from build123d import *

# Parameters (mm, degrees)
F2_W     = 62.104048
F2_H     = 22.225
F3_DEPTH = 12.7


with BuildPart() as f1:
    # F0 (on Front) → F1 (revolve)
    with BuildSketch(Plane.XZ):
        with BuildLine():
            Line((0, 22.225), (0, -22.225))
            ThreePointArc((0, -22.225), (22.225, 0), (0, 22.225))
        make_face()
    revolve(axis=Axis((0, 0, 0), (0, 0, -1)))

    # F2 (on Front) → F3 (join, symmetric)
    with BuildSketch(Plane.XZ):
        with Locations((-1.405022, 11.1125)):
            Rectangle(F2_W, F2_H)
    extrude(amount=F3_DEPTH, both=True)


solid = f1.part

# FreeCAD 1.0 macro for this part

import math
import FreeCAD as App
import Part
import Sketcher

V = App.Vector
Q = App.Units.Quantity


def add_polygon(sketch, points):
    """Adds a closed chain of lines whose ends are joined by coincident constraints."""
    first, n = sketch.GeometryCount, len(points)
    for a, b in zip(points, points[1:] + points[:1]):
        sketch.addGeometry(Part.LineSegment(App.Vector(*a, 0), App.Vector(*b, 0)), False)
    for i in range(n):
        sketch.addConstraint(Sketcher.Constraint("Coincident", first + i, 2, first + (i + 1) % n, 1))

doc = App.newDocument("Part")
body = doc.addObject("PartDesign::Body", "Body")

# Sketch on XZ plane
sketch1 = body.newObject("Sketcher::SketchObject", "Sketch")
sketch1.AttachmentSupport = (doc.getObject("XZ_Plane"), [""])
sketch1.MapMode = "FlatFace"
sketch1.addGeometry([
    Part.LineSegment(V(0, 22, 0), V(0, -22, 0)),
    Part.ArcOfCircle(Part.Circle(V(0, 0, 0), V(0, 0, 1), 22), math.radians(-90), math.radians(90)),
], False)
sketch1.addConstraint([
    Sketcher.Constraint("Coincident", 0, 1, 1, 2),
    Sketcher.Constraint("Coincident", 1, 1, 0, 2),
    Sketcher.Constraint("Vertical", 0),
    Sketcher.Constraint("Coincident", 1, 3, -1, 1),
    Sketcher.Constraint("PointOnObject", 0, 1, -2),
    Sketcher.Constraint("Radius", 1, Q("0.875 in")),
])
revolution = body.newObject("PartDesign::Revolution", "Revolution")
revolution.Profile = sketch1
revolution.ReferenceAxis = (sketch1, ["V_Axis"])
revolution.Angle = 360

# Sketch on XZ plane
sketch2 = body.newObject("Sketcher::SketchObject", "Sketch001")
sketch2.AttachmentSupport = (doc.getObject("XZ_Plane"), [""])
sketch2.MapMode = "FlatFace"
add_polygon(sketch2, [(-32, 22), (-32, 0), (30, 0), (30, 22)])  # lines 0-3
sketch2.addConstraint([
    Sketcher.Constraint("Vertical", 0),
    Sketcher.Constraint("Horizontal", 1),
    Sketcher.Constraint("Vertical", 2),
    Sketcher.Constraint("Horizontal", 3),
    Sketcher.Constraint("PointOnObject", 0, 2, -1),
    Sketcher.Constraint("DistanceY", 0, 2, 0, 1, Q("0.875 in")),
    Sketcher.Constraint("DistanceX", 1, 1, 1, 2, Q("62.104048 mm")),
    Sketcher.Constraint("DistanceX", 0, 2, -1, 1, Q("32.457046 mm")),
])
pad1 = body.newObject("PartDesign::Pad", "Pad")
pad1.Profile = sketch2
pad1.Length = Q("1 in")
pad1.Midplane = True

doc.recompute()
